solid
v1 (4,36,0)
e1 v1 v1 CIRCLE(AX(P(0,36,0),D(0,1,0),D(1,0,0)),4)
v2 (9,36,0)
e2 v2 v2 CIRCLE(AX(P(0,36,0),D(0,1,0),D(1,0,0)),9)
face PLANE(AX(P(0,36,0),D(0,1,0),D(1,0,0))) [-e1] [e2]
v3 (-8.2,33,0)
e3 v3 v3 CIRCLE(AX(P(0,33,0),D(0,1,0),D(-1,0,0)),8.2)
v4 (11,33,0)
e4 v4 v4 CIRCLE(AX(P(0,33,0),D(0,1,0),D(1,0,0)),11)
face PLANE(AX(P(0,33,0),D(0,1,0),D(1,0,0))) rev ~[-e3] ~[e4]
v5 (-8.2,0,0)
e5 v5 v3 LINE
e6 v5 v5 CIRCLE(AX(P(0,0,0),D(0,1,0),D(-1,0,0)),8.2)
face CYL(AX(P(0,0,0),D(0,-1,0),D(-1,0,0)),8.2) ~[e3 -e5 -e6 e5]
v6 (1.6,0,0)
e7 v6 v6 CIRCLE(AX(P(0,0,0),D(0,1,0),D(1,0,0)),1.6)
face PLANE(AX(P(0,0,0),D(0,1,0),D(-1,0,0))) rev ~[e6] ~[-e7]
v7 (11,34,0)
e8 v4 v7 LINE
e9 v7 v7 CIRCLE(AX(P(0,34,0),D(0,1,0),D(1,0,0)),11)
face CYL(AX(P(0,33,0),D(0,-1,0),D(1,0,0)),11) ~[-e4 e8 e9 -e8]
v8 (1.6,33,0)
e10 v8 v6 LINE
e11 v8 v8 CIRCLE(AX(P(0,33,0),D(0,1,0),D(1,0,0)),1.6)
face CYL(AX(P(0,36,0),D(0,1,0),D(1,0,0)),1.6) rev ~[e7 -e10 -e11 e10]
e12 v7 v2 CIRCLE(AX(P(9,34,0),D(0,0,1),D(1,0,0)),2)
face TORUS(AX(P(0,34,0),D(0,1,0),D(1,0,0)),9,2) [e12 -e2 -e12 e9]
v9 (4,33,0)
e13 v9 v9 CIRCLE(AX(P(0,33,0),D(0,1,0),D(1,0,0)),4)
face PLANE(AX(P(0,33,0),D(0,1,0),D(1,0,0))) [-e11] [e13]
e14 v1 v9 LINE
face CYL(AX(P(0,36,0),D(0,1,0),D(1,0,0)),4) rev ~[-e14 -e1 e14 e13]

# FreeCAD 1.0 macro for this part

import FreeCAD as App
import Part
import Sketcher


def edges_at(feature, points):
    """Names of the edges that pass closest to the given points."""
    edges = feature.Shape.Edges
    near = lambda p: min(range(len(edges)), key=lambda i: edges[i].distToShape(Part.Vertex(*p))[0])
    return sorted({f"Edge{near(p) + 1}" for p in points})

doc = App.newDocument("Part")
body = doc.addObject("PartDesign::Body", "Body")

sketch1 = doc.addObject("Sketcher::SketchObject", "Sketch")
body.addObject(sketch1)
sketch1.AttachmentSupport = (doc.XZ_Plane, [""])
sketch1.MapMode = "FlatFace"
sketch1.addGeometry(Part.Circle(App.Vector(0, 0, 0), App.Vector(0, 0, 1), 8), False)
sketch1.addConstraint([
    Sketcher.Constraint("Coincident", 0, 3, -1, 1),
    Sketcher.Constraint("Diameter", 0, 16.4),
])
pad1 = doc.addObject("PartDesign::Pad", "Pad")
body.addObject(pad1)
pad1.Profile = sketch1
pad1.Length = 33
pad1.Reversed = True

sketch2 = doc.addObject("Sketcher::SketchObject", "Sketch001")
body.addObject(sketch2)
sketch2.AttachmentSupport = (doc.XZ_Plane, [""])
sketch2.MapMode = "FlatFace"
sketch2.AttachmentOffset = App.Placement(App.Vector(0, 0, -33), App.Rotation())
sketch2.addGeometry(Part.Circle(App.Vector(0, 0, 0), App.Vector(0, 0, 1), 11), False)
sketch2.addConstraint([
    Sketcher.Constraint("Coincident", 0, 3, -1, 1),
    Sketcher.Constraint("Diameter", 0, 22.0),
])
pad2 = doc.addObject("PartDesign::Pad", "Pad001")
body.addObject(pad2)
pad2.Profile = sketch2
pad2.Length = 3
pad2.Reversed = True

sketch3 = doc.addObject("Sketcher::SketchObject", "Sketch002")
body.addObject(sketch3)
sketch3.AttachmentSupport = (doc.XZ_Plane, [""])
sketch3.MapMode = "FlatFace"
sketch3.AttachmentOffset = App.Placement(App.Vector(0, 0, -36), App.Rotation())
sketch3.addGeometry(Part.Circle(App.Vector(0, 0, 0), App.Vector(0, 0, 1), 1.6), False)
sketch3.addConstraint([
    Sketcher.Constraint("Coincident", 0, 3, -1, 1),
    Sketcher.Constraint("Diameter", 0, 3.2),
])
pocket1 = doc.addObject("PartDesign::Pocket", "Pocket")
body.addObject(pocket1)
pocket1.Profile = sketch3
pocket1.Length = 100
pocket1.Reversed = True

sketch4 = doc.addObject("Sketcher::SketchObject", "Sketch003")
body.addObject(sketch4)
sketch4.AttachmentSupport = (doc.XZ_Plane, [""])
sketch4.MapMode = "FlatFace"
sketch4.AttachmentOffset = App.Placement(App.Vector(0, 0, -36), App.Rotation())
sketch4.addGeometry([
    Part.Circle(App.Vector(0, 0, 0), App.Vector(0, 0, 1), 4),
    Part.Circle(App.Vector(0, 0, 0), App.Vector(0, 0, 1), 1.6),
], False)
sketch4.addConstraint([
    Sketcher.Constraint("Coincident", 0, 3, -1, 1),
    Sketcher.Constraint("Coincident", 1, 3, -1, 1),
    Sketcher.Constraint("Diameter", 0, 8.0),
    Sketcher.Constraint("Diameter", 1, 3.2),
])
pocket2 = doc.addObject("PartDesign::Pocket", "Pocket001")
body.addObject(pocket2)
pocket2.Profile = sketch4
pocket2.Length = 3
pocket2.Reversed = True
doc.recompute()

fillet = doc.addObject("PartDesign::Fillet", "Fillet")
body.addObject(fillet)
fillet.Base = (pocket2, edges_at(pocket2, [(-11, 36, 0)]))
fillet.Radius = 2

doc.recompute()
